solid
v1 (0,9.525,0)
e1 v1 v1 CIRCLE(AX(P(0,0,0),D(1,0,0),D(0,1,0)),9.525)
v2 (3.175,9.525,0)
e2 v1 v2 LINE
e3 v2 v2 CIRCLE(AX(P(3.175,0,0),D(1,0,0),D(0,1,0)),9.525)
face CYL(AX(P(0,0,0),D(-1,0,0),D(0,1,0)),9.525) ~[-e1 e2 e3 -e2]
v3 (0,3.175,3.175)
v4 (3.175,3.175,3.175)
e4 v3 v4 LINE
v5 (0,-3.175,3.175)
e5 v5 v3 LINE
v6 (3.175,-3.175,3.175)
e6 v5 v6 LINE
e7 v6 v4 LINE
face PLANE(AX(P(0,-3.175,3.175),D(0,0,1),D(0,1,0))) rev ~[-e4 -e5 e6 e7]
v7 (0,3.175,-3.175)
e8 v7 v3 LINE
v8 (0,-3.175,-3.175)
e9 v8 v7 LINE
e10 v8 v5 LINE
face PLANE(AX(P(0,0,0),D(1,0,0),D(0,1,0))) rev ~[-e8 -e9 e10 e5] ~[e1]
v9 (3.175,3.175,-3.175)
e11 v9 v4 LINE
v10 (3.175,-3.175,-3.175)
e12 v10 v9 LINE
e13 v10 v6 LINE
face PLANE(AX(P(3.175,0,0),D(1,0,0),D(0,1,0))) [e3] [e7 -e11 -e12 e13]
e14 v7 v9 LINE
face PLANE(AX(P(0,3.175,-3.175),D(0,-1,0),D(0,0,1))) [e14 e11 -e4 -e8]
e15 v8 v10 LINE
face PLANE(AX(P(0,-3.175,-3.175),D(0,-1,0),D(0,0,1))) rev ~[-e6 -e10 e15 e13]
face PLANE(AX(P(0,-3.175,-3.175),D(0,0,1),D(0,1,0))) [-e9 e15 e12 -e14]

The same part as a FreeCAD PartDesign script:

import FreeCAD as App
import Part
import Sketcher
from FreeCAD import Vector
Q = App.Units.Quantity

doc = App.newDocument("Part")
body = doc.addObject("PartDesign::Body", "Body")

sketch1 = doc.addObject("Sketcher::SketchObject", "Sketch")
body.addObject(sketch1)
sketch1.AttachmentSupport = (doc.YZ_Plane, [""])
sketch1.MapMode = "FlatFace"
sketch1.addGeometry([
    Part.Circle(Vector(0, 0, 0), Vector(0, 0, 1), 10),
    Part.LineSegment(Vector(3, -3, 0), Vector(-3, -3, 0)),
    Part.LineSegment(Vector(-3, -3, 0), Vector(-3, 3, 0)),
    Part.LineSegment(Vector(-3, 3, 0), Vector(3, 3, 0)),
    Part.LineSegment(Vector(3, 3, 0), Vector(3, -3, 0)),
], False)
sketch1.addConstraint([
    Sketcher.Constraint("Coincident", 1, 2, 2, 1),
    Sketcher.Constraint("Coincident", 2, 2, 3, 1),
    Sketcher.Constraint("Coincident", 3, 2, 4, 1),
    Sketcher.Constraint("Coincident", 4, 2, 1, 1),
    Sketcher.Constraint("Horizontal", 1),
    Sketcher.Constraint("Vertical", 2),
    Sketcher.Constraint("Horizontal", 3),
    Sketcher.Constraint("Vertical", 4),
    Sketcher.Constraint("Coincident", 0, 3, -1, 1),
    Sketcher.Constraint("Symmetric", 1, 2, 3, 2, -1, 1),
    Sketcher.Constraint("Equal", 3, 2),
    Sketcher.Constraint("Diameter", 0, Q("0.75 in")),
    Sketcher.Constraint("DistanceX", 1, 2, 1, 1, Q("0.25 in")),
])
pad1 = doc.addObject("PartDesign::Pad", "Pad")
body.addObject(pad1)
pad1.Profile = sketch1
pad1.Length = Q("0.125 in")

doc.recompute()
